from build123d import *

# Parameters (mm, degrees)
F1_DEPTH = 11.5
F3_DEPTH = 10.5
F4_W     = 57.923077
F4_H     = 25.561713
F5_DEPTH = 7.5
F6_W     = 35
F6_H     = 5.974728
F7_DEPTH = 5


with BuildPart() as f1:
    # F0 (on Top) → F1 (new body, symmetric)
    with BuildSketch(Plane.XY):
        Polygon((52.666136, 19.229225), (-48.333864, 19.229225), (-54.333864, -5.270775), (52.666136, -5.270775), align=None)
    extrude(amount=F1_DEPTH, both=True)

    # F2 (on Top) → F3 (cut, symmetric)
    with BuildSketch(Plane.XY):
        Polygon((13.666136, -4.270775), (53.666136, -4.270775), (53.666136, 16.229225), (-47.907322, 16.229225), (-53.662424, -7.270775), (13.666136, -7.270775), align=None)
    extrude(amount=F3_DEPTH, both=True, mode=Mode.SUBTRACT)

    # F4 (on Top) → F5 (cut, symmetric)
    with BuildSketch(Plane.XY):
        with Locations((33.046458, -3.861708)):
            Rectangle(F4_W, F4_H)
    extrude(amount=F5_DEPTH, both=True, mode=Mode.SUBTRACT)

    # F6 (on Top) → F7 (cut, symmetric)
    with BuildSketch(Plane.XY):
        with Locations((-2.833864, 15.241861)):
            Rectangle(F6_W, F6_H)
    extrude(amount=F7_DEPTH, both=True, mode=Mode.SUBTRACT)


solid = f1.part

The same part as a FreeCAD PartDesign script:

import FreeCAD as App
import Part
import Sketcher

V = App.Vector


def add_polygon(sketch, points):
    """Adds a closed chain of lines whose ends are joined by coincident constraints."""
    first, n = sketch.GeometryCount, len(points)
    for a, b in zip(points, points[1:] + points[:1]):
        sketch.addGeometry(Part.LineSegment(App.Vector(*a, 0), App.Vector(*b, 0)), False)
    for i in range(n):
        sketch.addConstraint(Sketcher.Constraint("Coincident", first + i, 2, first + (i + 1) % n, 1))

doc = App.newDocument("Part")
body = doc.addObject("PartDesign::Body", "Body")

sketch1 = body.newObject("Sketcher::SketchObject", "Sketch")
sketch1.AttachmentSupport = (doc.getObject("XY_Plane"), [""])
sketch1.MapMode = "FlatFace"
add_polygon(sketch1, [(53, 19), (-48, 19), (-54, -5), (53, -5)])
sketch1.addConstraint([
    Sketcher.Constraint("Horizontal", 0),
    Sketcher.Constraint("Horizontal", 2),
    Sketcher.Constraint("Vertical", 3),
    Sketcher.Constraint("DistanceX", 0, 2, 0, 1, 101.0),
    Sketcher.Constraint("DistanceX", 2, 1, 2, 2, 107.0),
    Sketcher.Constraint("DistanceY", 3, 1, 3, 2, 24.5),
    Sketcher.Constraint("DistanceX", 0, 2, -1, 1, 48.333864),
    Sketcher.Constraint("DistanceY", -1, 1, 0, 2, 19.229225),
])
pad1 = body.newObject("PartDesign::Pad", "Pad")
pad1.Profile = sketch1
pad1.Length = 23
pad1.Midplane = True

sketch2 = body.newObject("Sketcher::SketchObject", "Sketch001")
sketch2.AttachmentSupport = (doc.getObject("XY_Plane"), [""])
sketch2.MapMode = "FlatFace"
add_polygon(sketch2, [(13.7, -4.3), (53.7, -4.3), (53.7, 16.2), (-47.9, 16.2), (-53.7, -7.3), (13.7, -7.3)])
sketch2.addConstraint([
    Sketcher.Constraint("Horizontal", 0),
    Sketcher.Constraint("Vertical", 1),
    Sketcher.Constraint("Horizontal", 2),
    Sketcher.Constraint("Horizontal", 4),
    Sketcher.Constraint("Vertical", 5),
    Sketcher.Constraint("DistanceX", 0, 1, 0, 2, 40.0),
    Sketcher.Constraint("DistanceY", 5, 1, 5, 2, 3.0),
    Sketcher.Constraint("DistanceY", 1, 1, 1, 2, 20.5),
    Sketcher.Constraint("DistanceX", 2, 2, 2, 1, 101.573458),
    Sketcher.Constraint("DistanceX", 4, 1, 4, 2, 67.32856),
    Sketcher.Constraint("DistanceX", -1, 1, 0, 2, 53.666136),
    Sketcher.Constraint("DistanceY", 0, 2, -1, 1, 4.270775),
])
pocket1 = body.newObject("PartDesign::Pocket", "Pocket")
pocket1.Profile = sketch2
pocket1.Length = 21
pocket1.Midplane = True

sketch3 = body.newObject("Sketcher::SketchObject", "Sketch002")
sketch3.AttachmentSupport = (doc.getObject("XY_Plane"), [""])
sketch3.MapMode = "FlatFace"
add_polygon(sketch3, [(4, 9), (4, -17), (62, -17), (62, 9)])
sketch3.addConstraint([
    Sketcher.Constraint("Vertical", 0),
    Sketcher.Constraint("Horizontal", 1),
    Sketcher.Constraint("Vertical", 2),
    Sketcher.Constraint("Horizontal", 3),
    Sketcher.Constraint("DistanceX", 1, 1, 1, 2, 57.923077),
    Sketcher.Constraint("DistanceY", 0, 2, 0, 1, 25.561713),
    Sketcher.Constraint("DistanceX", -1, 1, 0, 2, 4.084919),
    Sketcher.Constraint("DistanceY", -1, 1, 2, 2, 8.919149),
])
pocket2 = body.newObject("PartDesign::Pocket", "Pocket001")
pocket2.Profile = sketch3
pocket2.Length = 15
pocket2.Midplane = True

sketch4 = body.newObject("Sketcher::SketchObject", "Sketch003")
sketch4.AttachmentSupport = (doc.getObject("XY_Plane"), [""])
sketch4.MapMode = "FlatFace"
add_polygon(sketch4, [(-20, 18), (-20, 12), (15, 12), (15, 18)])
sketch4.addConstraint([
    Sketcher.Constraint("Vertical", 0),
    Sketcher.Constraint("Horizontal", 1),
    Sketcher.Constraint("Vertical", 2),
    Sketcher.Constraint("Horizontal", 3),
    Sketcher.Constraint("DistanceX", 1, 1, 1, 2, 35.0),
    Sketcher.Constraint("DistanceY", 0, 2, 0, 1, 5.974728),
    Sketcher.Constraint("DistanceX", 0, 2, -1, 1, 20.333864),
    Sketcher.Constraint("DistanceY", -1, 1, 0, 2, 12.254497),
])
pocket3 = body.newObject("PartDesign::Pocket", "Pocket002")
pocket3.Profile = sketch4
pocket3.Length = 10
pocket3.Midplane = True

doc.recompute()
